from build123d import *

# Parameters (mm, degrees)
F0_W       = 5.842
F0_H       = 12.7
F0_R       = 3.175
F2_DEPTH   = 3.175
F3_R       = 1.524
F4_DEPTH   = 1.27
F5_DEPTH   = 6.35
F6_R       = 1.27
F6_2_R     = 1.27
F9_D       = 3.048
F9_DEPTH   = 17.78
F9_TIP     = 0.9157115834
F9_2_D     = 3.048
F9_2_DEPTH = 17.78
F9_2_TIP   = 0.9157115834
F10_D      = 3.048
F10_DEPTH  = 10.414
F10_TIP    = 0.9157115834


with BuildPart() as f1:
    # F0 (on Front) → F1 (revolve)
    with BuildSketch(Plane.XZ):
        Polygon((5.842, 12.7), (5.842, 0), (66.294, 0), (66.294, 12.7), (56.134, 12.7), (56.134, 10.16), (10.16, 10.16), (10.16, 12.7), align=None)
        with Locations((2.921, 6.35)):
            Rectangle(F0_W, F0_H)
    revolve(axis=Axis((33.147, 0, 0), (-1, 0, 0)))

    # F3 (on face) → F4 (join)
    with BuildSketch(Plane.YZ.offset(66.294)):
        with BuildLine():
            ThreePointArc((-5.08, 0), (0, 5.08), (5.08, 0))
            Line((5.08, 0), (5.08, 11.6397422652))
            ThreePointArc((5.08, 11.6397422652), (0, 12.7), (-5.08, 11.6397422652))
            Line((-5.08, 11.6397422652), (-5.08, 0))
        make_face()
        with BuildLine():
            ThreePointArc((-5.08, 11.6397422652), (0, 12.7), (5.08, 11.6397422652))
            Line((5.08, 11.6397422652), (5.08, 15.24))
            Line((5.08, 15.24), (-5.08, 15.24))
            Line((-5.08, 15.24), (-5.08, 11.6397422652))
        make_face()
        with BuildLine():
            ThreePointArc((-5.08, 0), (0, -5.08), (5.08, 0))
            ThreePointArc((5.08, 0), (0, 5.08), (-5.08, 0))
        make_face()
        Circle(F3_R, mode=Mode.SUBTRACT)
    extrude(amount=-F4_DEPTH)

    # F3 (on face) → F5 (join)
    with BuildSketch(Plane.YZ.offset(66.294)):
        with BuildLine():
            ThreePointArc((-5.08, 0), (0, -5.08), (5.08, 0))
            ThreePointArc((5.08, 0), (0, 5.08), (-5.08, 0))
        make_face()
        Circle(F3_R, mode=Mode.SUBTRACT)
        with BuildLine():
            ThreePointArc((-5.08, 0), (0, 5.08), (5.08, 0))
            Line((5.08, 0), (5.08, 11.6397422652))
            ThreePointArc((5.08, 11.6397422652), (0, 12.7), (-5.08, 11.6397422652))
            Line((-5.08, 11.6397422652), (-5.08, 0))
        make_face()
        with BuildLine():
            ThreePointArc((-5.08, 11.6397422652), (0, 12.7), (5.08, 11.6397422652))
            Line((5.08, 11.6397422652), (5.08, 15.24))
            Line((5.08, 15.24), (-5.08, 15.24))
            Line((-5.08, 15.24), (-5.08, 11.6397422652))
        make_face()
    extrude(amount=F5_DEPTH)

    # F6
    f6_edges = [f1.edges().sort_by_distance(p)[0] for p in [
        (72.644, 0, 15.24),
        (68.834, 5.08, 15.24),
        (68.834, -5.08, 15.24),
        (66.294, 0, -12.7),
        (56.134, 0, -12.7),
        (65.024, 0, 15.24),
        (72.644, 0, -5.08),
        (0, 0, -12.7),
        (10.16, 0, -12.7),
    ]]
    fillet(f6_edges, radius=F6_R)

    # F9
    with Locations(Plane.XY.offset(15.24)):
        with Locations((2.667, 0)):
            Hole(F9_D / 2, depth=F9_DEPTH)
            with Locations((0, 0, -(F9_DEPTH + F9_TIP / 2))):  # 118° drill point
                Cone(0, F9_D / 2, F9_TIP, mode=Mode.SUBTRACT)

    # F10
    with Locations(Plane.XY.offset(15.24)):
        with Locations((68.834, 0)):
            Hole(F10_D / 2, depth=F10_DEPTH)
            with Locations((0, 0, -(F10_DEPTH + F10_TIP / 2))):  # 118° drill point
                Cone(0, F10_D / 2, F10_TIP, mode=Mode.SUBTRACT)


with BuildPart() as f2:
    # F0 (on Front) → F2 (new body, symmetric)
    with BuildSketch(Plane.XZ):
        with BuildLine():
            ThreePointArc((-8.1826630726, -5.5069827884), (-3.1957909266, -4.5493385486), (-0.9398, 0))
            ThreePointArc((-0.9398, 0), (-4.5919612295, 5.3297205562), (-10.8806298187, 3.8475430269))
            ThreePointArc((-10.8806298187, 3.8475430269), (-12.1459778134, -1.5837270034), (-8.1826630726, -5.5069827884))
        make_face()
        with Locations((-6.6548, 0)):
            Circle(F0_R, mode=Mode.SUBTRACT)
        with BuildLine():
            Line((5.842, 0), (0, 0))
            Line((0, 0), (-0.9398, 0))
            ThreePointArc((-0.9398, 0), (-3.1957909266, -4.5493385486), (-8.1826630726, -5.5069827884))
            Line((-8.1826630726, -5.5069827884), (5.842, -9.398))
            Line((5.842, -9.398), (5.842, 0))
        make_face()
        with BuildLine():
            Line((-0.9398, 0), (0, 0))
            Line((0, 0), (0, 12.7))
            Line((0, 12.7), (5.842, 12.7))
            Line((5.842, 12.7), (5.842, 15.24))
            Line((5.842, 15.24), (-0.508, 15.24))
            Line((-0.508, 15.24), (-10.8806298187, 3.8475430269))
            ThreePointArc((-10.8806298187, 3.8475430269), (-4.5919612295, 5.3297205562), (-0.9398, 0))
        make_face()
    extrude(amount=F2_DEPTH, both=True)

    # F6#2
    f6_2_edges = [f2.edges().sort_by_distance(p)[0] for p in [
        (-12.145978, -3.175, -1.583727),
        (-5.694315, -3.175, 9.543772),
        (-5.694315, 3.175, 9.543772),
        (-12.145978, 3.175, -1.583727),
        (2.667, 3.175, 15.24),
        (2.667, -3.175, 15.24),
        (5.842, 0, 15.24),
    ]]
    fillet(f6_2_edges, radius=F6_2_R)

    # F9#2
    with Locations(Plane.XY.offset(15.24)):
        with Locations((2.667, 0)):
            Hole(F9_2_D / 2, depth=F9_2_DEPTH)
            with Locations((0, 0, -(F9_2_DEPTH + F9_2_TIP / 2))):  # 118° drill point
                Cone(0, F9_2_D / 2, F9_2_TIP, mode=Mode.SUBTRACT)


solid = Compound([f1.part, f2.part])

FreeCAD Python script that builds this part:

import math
import FreeCAD as App
import Part
import Sketcher
Q = App.Units.Quantity


def edges_at(feature, points):
    """Names of the edges that pass closest to the given points."""
    edges = feature.Shape.Edges
    near = lambda p: min(range(len(edges)), key=lambda i: edges[i].distToShape(Part.Vertex(*p))[0])
    return sorted({f"Edge{near(p) + 1}" for p in points})

doc = App.newDocument("Part")
params = doc.addObject("Spreadsheet::Sheet", "Params")
for row, (alias, value) in enumerate([
    ("sketch1_width", "0.4 in"),
    ("sketch1_height", "0.5 in"),
    ("sketch1_height2", "0.1 in"),
    ("sketch1_width2", "1.81 in"),
    ("revolution_angle", "360 deg"),
    ("sketch2_radius", "0.2 in"),
    ("sketch2_diameter", "0.12 in"),
    ("sketch2_height", "0.6 in"),
    ("pad1_length", "0.05 in"),
    ("sketch3_radius", "0.2 in"),
    ("sketch3_diameter", "0.12 in"),
    ("sketch3_height", "0.6 in"),
    ("pad2_length", "0.25 in"),
    ("fillet_radius", "0.05 in"),
    ("sketch4_diameter", "0.12 in"),
    ("hole_diameter", "0.12 in"),
    ("hole_depth", "0.7 in"),
    ("sketch5_diameter", "0.12 in"),
    ("hole2_diameter", "0.12 in"),
    ("hole2_depth", "0.41 in"),
    ("sketch6_diameter", "0.25 in"),
    ("sketch6_height", "0.5 in"),
    ("sketch6_height2", "0.1 in"),
    ("sketch6_radius", "0.225 in"),
    ("sketch6_width", "0.23 in"),
    ("pad3_length", "0.25 in"),
    ("fillet2_radius", "0.05 in"),
    ("sketch7_diameter", "0.12 in"),
    ("hole3_diameter", "0.12 in"),
    ("hole3_depth", "0.7 in"),
], start=1):
    params.set(f"A{row}", alias)
    params.set(f"B{row}", "=" + value)
    params.setAlias(f"B{row}", alias)

body = doc.addObject("PartDesign::Body", "Body")

# Sketch on XZ plane
sketch1 = body.newObject("Sketcher::SketchObject", "Sketch")
sketch1.AttachmentSupport = (doc.getObject("XZ_Plane"), [""])
sketch1.MapMode = "FlatFace"
sketch1.addGeometry([
    Part.LineSegment(App.Vector(66.294, 0, 0), App.Vector(66.294, 12.7, 0)),  # 0
    Part.LineSegment(App.Vector(66.294, 12.7, 0), App.Vector(56.134, 12.7, 0)),  # 1
    Part.LineSegment(App.Vector(56.134, 12.7, 0), App.Vector(56.134, 10.16, 0)),  # 2
    Part.LineSegment(App.Vector(56.134, 10.16, 0), App.Vector(10.16, 10.16, 0)),  # 3
    Part.LineSegment(App.Vector(10.16, 10.16, 0), App.Vector(10.16, 12.7, 0)),  # 4
    Part.LineSegment(App.Vector(10.16, 12.7, 0), App.Vector(0, 12.7, 0)),  # 5
    Part.LineSegment(App.Vector(0, 12.7, 0), App.Vector(0, 0, 0)),  # 6
    Part.LineSegment(App.Vector(0, 0, 0), App.Vector(66.294, 0, 0)),  # 7
], False)
sketch1.addConstraint([
    Sketcher.Constraint("Coincident", 0, 2, 1, 1),
    Sketcher.Constraint("Coincident", 1, 2, 2, 1),
    Sketcher.Constraint("Coincident", 2, 2, 3, 1),
    Sketcher.Constraint("Coincident", 3, 2, 4, 1),
    Sketcher.Constraint("Coincident", 4, 2, 5, 1),
    Sketcher.Constraint("Coincident", 5, 2, 6, 1),
    Sketcher.Constraint("Coincident", 6, 2, 7, 1),
    Sketcher.Constraint("Coincident", 7, 2, 0, 1),
    Sketcher.Constraint("Vertical", 0),
    Sketcher.Constraint("Horizontal", 1),
    Sketcher.Constraint("Vertical", 2),
    Sketcher.Constraint("Horizontal", 3),
    Sketcher.Constraint("Vertical", 4),
    Sketcher.Constraint("Horizontal", 5),
    Sketcher.Constraint("Vertical", 6),
    Sketcher.Constraint("Horizontal", 7),
    Sketcher.Constraint("Coincident", 6, 2, -1, 1),
    Sketcher.Constraint("Horizontal", 1, 2, 4, 2),
    Sketcher.Constraint("Equal", 1, 5),
    Sketcher.Constraint("DistanceX", 1, 2, 1, 1, Q("0.4 in")),
    Sketcher.Constraint("DistanceY", 0, 1, 0, 2, Q("0.5 in")),
    Sketcher.Constraint("DistanceY", 2, 2, 2, 1, Q("0.1 in")),
    Sketcher.Constraint("DistanceX", 3, 2, 3, 1, Q("1.81 in")),
])
sketch1.setExpression("Constraints[19]", "Params.sketch1_width")
sketch1.setExpression("Constraints[20]", "Params.sketch1_height")
sketch1.setExpression("Constraints[21]", "Params.sketch1_height2")
sketch1.setExpression("Constraints[22]", "Params.sketch1_width2")
revolution = body.newObject("PartDesign::Revolution", "Revolution")
revolution.Profile = sketch1
revolution.ReferenceAxis = (sketch1, ["H_Axis"])
revolution.setExpression("Angle", "Params.revolution_angle")

# Sketch on YZ plane
sketch2 = body.newObject("Sketcher::SketchObject", "Sketch001")
sketch2.AttachmentSupport = (doc.getObject("YZ_Plane"), [""])
sketch2.MapMode = "FlatFace"
sketch2.AttachmentOffset = App.Placement(App.Vector(0, 0, 2.61 * 25.4), App.Rotation())
sketch2.addGeometry([
    Part.LineSegment(App.Vector(5.08, 0, 0), App.Vector(5.08, 15.24, 0)),  # 0
    Part.LineSegment(App.Vector(5.08, 15.24, 0), App.Vector(-5.08, 15.24, 0)),  # 1
    Part.LineSegment(App.Vector(-5.08, 15.24, 0), App.Vector(-5.08, 0, 0)),  # 2
    Part.ArcOfCircle(Part.Circle(App.Vector(0, 0, 0), App.Vector(0, 0, 1), 5.08), math.radians(180), math.radians(360)),  # 3
    Part.Circle(App.Vector(0, 0, 0), App.Vector(0, 0, 1), 1.524),  # 4
], False)
sketch2.addConstraint([
    Sketcher.Constraint("Coincident", 0, 2, 1, 1),
    Sketcher.Constraint("Coincident", 1, 2, 2, 1),
    Sketcher.Constraint("Tangent", 2, 2, 3, 1),
    Sketcher.Constraint("Tangent", 3, 2, 0, 1),
    Sketcher.Constraint("Vertical", 0),
    Sketcher.Constraint("Horizontal", 1),
    Sketcher.Constraint("Vertical", 2),
    Sketcher.Constraint("Coincident", 3, 3, -1, 1),
    Sketcher.Constraint("Coincident", 4, 3, -1, 1),
    Sketcher.Constraint("Radius", 3, Q("0.2 in")),
    Sketcher.Constraint("Diameter", 4, Q("0.12 in")),
    Sketcher.Constraint("DistanceY", 0, 1, 0, 2, Q("0.6 in")),
])
sketch2.setExpression("Constraints[9]", "Params.sketch2_radius")
sketch2.setExpression("Constraints[10]", "Params.sketch2_diameter")
sketch2.setExpression("Constraints[11]", "Params.sketch2_height")
pad1 = body.newObject("PartDesign::Pad", "Pad")
pad1.Profile = sketch2
pad1.setExpression("Length", "Params.pad1_length")
pad1.Reversed = True

# Sketch on YZ plane
sketch3 = body.newObject("Sketcher::SketchObject", "Sketch002")
sketch3.AttachmentSupport = (doc.getObject("YZ_Plane"), [""])
sketch3.MapMode = "FlatFace"
sketch3.AttachmentOffset = App.Placement(App.Vector(0, 0, 2.61 * 25.4), App.Rotation())
sketch3.addGeometry([
    Part.ArcOfCircle(Part.Circle(App.Vector(0, 0, 0), App.Vector(0, 0, 1), 5.08), math.radians(180), math.radians(360)),  # 0
    Part.LineSegment(App.Vector(5.08, 0, 0), App.Vector(5.08, 15.24, 0)),  # 1
    Part.LineSegment(App.Vector(5.08, 15.24, 0), App.Vector(-5.08, 15.24, 0)),  # 2
    Part.LineSegment(App.Vector(-5.08, 15.24, 0), App.Vector(-5.08, 0, 0)),  # 3
    Part.Circle(App.Vector(0, 0, 0), App.Vector(0, 0, 1), 1.524),  # 4
], False)
sketch3.addConstraint([
    Sketcher.Constraint("Tangent", 0, 2, 1, 1),
    Sketcher.Constraint("Coincident", 1, 2, 2, 1),
    Sketcher.Constraint("Coincident", 2, 2, 3, 1),
    Sketcher.Constraint("Tangent", 3, 2, 0, 1),
    Sketcher.Constraint("Vertical", 1),
    Sketcher.Constraint("Horizontal", 2),
    Sketcher.Constraint("Vertical", 3),
    Sketcher.Constraint("Coincident", 0, 3, -1, 1),
    Sketcher.Constraint("Coincident", 4, 3, -1, 1),
    Sketcher.Constraint("Radius", 0, Q("0.2 in")),
    Sketcher.Constraint("Diameter", 4, Q("0.12 in")),
    Sketcher.Constraint("DistanceY", 1, 1, 1, 2, Q("0.6 in")),
])
sketch3.setExpression("Constraints[9]", "Params.sketch3_radius")
sketch3.setExpression("Constraints[10]", "Params.sketch3_diameter")
sketch3.setExpression("Constraints[11]", "Params.sketch3_height")
pad2 = body.newObject("PartDesign::Pad", "Pad001")
pad2.Profile = sketch3
pad2.setExpression("Length", "Params.pad2_length")
doc.recompute()

fillet = body.newObject("PartDesign::Fillet", "Fillet")
fillet.Base = (pad2, edges_at(pad2, [
    (72.644, 0, 15.24),
    (68.834, 5.08, 15.24),
    (68.834, -5.08, 15.24),
    (66.294, 0, -12.7),
    (56.134, 0, -12.7),
    (65.024, 0, 15.24),
    (72.644, 0, -5.08),
    (0, 0, -12.7),
    (10.16, 0, -12.7),
]))
fillet.setExpression("Radius", "Params.fillet_radius")

# Sketch on XY plane
sketch4 = body.newObject("Sketcher::SketchObject", "Sketch003")
sketch4.AttachmentSupport = (doc.getObject("XY_Plane"), [""])
sketch4.MapMode = "FlatFace"
sketch4.AttachmentOffset = App.Placement(App.Vector(0, 0, 0.6 * 25.4), App.Rotation())
sketch4.addGeometry(Part.Circle(App.Vector(2.667, 0, 0), App.Vector(0, 0, 1), 1.524), False)
sketch4.addConstraint([
    Sketcher.Constraint("PointOnObject", 0, 3, -1),
    Sketcher.Constraint("Diameter", 0, Q("0.12 in")),
    Sketcher.Constraint("DistanceX", -1, 1, 0, 3, Q("0.105 in")),
])
sketch4.setExpression("Constraints[1]", "Params.sketch4_diameter")
doc.recompute()
hole = body.newObject("PartDesign::Hole", "Hole")
hole.Profile = sketch4
hole.ThreadType = "None"
hole.setExpression("Diameter", "Params.hole_diameter")
hole.DepthType = "Dimension"
hole.setExpression("Depth", "Params.hole_depth")
hole.DrillPoint = "Angled"
hole.DrillPointAngle = 118

# Sketch on XY plane
sketch5 = body.newObject("Sketcher::SketchObject", "Sketch004")
sketch5.AttachmentSupport = (doc.getObject("XY_Plane"), [""])
sketch5.MapMode = "FlatFace"
sketch5.AttachmentOffset = App.Placement(App.Vector(0, 0, 0.6 * 25.4), App.Rotation())
sketch5.addGeometry(Part.Circle(App.Vector(68.834, 0, 0), App.Vector(0, 0, 1), 1.524), False)
sketch5.addConstraint([
    Sketcher.Constraint("PointOnObject", 0, 3, -1),
    Sketcher.Constraint("Diameter", 0, Q("0.12 in")),
    Sketcher.Constraint("DistanceX", -1, 1, 0, 3, Q("2.71 in")),
])
sketch5.setExpression("Constraints[1]", "Params.sketch5_diameter")
doc.recompute()
hole2 = body.newObject("PartDesign::Hole", "Hole001")
hole2.Profile = sketch5
hole2.ThreadType = "None"
hole2.setExpression("Diameter", "Params.hole2_diameter")
hole2.DepthType = "Dimension"
hole2.setExpression("Depth", "Params.hole2_depth")
hole2.DrillPoint = "Angled"
hole2.DrillPointAngle = 118
body2 = doc.addObject("PartDesign::Body", "Body001")

# Sketch on XZ plane
sketch6 = body2.newObject("Sketcher::SketchObject", "Sketch005")
sketch6.AttachmentSupport = (doc.getObject("XZ_Plane001"), [""])
sketch6.MapMode = "FlatFace"
sketch6.addGeometry([
    Part.ArcOfCircle(Part.Circle(App.Vector(-6.6548, 0, 0), App.Vector(0, 0, 1), 5.715), math.radians(137.682695), math.radians(254.493802)),  # 0
    Part.LineSegment(App.Vector(-8.182663, -5.506983, 0), App.Vector(5.842, -9.398, 0)),  # 1
    Part.LineSegment(App.Vector(5.842, -9.398, 0), App.Vector(5.842, 0, 0)),  # 2
    Part.LineSegment(App.Vector(5.842, 0, 0), App.Vector(0, 0, 0)),  # 3
    Part.LineSegment(App.Vector(0, 0, 0), App.Vector(0, 12.7, 0)),  # 4
    Part.LineSegment(App.Vector(0, 12.7, 0), App.Vector(5.842, 12.7, 0)),  # 5
    Part.LineSegment(App.Vector(5.842, 12.7, 0), App.Vector(5.842, 15.24, 0)),  # 6
    Part.LineSegment(App.Vector(5.842, 15.24, 0), App.Vector(-0.508, 15.24, 0)),  # 7
    Part.LineSegment(App.Vector(-0.508, 15.24, 0), App.Vector(-10.88063, 3.847543, 0)),  # 8
    Part.Circle(App.Vector(-6.6548, 0, 0), App.Vector(0, 0, 1), 3.175),  # 9
], False)
sketch6.addConstraint([
    Sketcher.Constraint("Tangent", 0, 2, 1, 1),
    Sketcher.Constraint("Coincident", 1, 2, 2, 1),
    Sketcher.Constraint("Coincident", 2, 2, 3, 1),
    Sketcher.Constraint("Coincident", 3, 2, 4, 1),
    Sketcher.Constraint("Coincident", 4, 2, 5, 1),
    Sketcher.Constraint("Coincident", 5, 2, 6, 1),
    Sketcher.Constraint("Coincident", 6, 2, 7, 1),
    Sketcher.Constraint("Coincident", 7, 2, 8, 1),
    Sketcher.Constraint("Tangent", 8, 2, 0, 1),
    Sketcher.Constraint("Vertical", 2),
    Sketcher.Constraint("Horizontal", 3),
    Sketcher.Constraint("Vertical", 4),
    Sketcher.Constraint("Horizontal", 5),
    Sketcher.Constraint("Vertical", 6),
    Sketcher.Constraint("Horizontal", 7),
    Sketcher.Constraint("Coincident", 3, 2, -1, 1),
    Sketcher.Constraint("Coincident", 9, 3, 0, 3),
    Sketcher.Constraint("PointOnObject", 0, 3, -1),
    Sketcher.Constraint("Vertical", 2, 2, 5, 2),
    Sketcher.Constraint("Diameter", 9, Q("0.25 in")),
    Sketcher.Constraint("DistanceY", 4, 1, 4, 2, Q("0.5 in")),
    Sketcher.Constraint("DistanceY", 6, 1, 6, 2, Q("0.1 in")),
    Sketcher.Constraint("Radius", 0, Q("0.225 in")),
    Sketcher.Constraint("DistanceX", 3, 2, 3, 1, Q("0.23 in")),
    Sketcher.Constraint("DistanceX", 7, 2, 7, 1, Q("0.25 in")),
    Sketcher.Constraint("DistanceY", 2, 1, 2, 2, Q("0.37 in")),
    Sketcher.Constraint("DistanceX", 0, 3, -1, 1, Q("0.262 in")),
])
sketch6.setExpression("Constraints[19]", "Params.sketch6_diameter")
sketch6.setExpression("Constraints[20]", "Params.sketch6_height")
sketch6.setExpression("Constraints[21]", "Params.sketch6_height2")
sketch6.setExpression("Constraints[22]", "Params.sketch6_radius")
sketch6.setExpression("Constraints[23]", "Params.sketch6_width")
pad3 = body2.newObject("PartDesign::Pad", "Pad002")
pad3.Profile = sketch6
pad3.setExpression("Length", "Params.pad3_length")
pad3.Midplane = True
doc.recompute()

fillet2 = body2.newObject("PartDesign::Fillet", "Fillet001")
fillet2.Base = (pad3, edges_at(pad3, [
    (-12.146, -3.175, -1.584),
    (-5.694, -3.175, 9.544),
    (-5.694, 3.175, 9.544),
    (-12.146, 3.175, -1.584),
    (2.667, 3.175, 15.24),
    (2.667, -3.175, 15.24),
    (5.842, 0, 15.24),
]))
fillet2.setExpression("Radius", "Params.fillet2_radius")

# Sketch on XY plane
sketch7 = body2.newObject("Sketcher::SketchObject", "Sketch006")
sketch7.AttachmentSupport = (doc.getObject("XY_Plane001"), [""])
sketch7.MapMode = "FlatFace"
sketch7.AttachmentOffset = App.Placement(App.Vector(0, 0, 0.6 * 25.4), App.Rotation())
sketch7.addGeometry(Part.Circle(App.Vector(2.667, 0, 0), App.Vector(0, 0, 1), 1.524), False)
sketch7.addConstraint([
    Sketcher.Constraint("PointOnObject", 0, 3, -1),
    Sketcher.Constraint("Diameter", 0, Q("0.12 in")),
    Sketcher.Constraint("DistanceX", -1, 1, 0, 3, Q("0.105 in")),
])
sketch7.setExpression("Constraints[1]", "Params.sketch7_diameter")
doc.recompute()
hole3 = body2.newObject("PartDesign::Hole", "Hole002")
hole3.Profile = sketch7
hole3.ThreadType = "None"
hole3.setExpression("Diameter", "Params.hole3_diameter")
hole3.DepthType = "Dimension"
hole3.setExpression("Depth", "Params.hole3_depth")
hole3.DrillPoint = "Angled"
hole3.DrillPointAngle = 118

doc.recompute()
